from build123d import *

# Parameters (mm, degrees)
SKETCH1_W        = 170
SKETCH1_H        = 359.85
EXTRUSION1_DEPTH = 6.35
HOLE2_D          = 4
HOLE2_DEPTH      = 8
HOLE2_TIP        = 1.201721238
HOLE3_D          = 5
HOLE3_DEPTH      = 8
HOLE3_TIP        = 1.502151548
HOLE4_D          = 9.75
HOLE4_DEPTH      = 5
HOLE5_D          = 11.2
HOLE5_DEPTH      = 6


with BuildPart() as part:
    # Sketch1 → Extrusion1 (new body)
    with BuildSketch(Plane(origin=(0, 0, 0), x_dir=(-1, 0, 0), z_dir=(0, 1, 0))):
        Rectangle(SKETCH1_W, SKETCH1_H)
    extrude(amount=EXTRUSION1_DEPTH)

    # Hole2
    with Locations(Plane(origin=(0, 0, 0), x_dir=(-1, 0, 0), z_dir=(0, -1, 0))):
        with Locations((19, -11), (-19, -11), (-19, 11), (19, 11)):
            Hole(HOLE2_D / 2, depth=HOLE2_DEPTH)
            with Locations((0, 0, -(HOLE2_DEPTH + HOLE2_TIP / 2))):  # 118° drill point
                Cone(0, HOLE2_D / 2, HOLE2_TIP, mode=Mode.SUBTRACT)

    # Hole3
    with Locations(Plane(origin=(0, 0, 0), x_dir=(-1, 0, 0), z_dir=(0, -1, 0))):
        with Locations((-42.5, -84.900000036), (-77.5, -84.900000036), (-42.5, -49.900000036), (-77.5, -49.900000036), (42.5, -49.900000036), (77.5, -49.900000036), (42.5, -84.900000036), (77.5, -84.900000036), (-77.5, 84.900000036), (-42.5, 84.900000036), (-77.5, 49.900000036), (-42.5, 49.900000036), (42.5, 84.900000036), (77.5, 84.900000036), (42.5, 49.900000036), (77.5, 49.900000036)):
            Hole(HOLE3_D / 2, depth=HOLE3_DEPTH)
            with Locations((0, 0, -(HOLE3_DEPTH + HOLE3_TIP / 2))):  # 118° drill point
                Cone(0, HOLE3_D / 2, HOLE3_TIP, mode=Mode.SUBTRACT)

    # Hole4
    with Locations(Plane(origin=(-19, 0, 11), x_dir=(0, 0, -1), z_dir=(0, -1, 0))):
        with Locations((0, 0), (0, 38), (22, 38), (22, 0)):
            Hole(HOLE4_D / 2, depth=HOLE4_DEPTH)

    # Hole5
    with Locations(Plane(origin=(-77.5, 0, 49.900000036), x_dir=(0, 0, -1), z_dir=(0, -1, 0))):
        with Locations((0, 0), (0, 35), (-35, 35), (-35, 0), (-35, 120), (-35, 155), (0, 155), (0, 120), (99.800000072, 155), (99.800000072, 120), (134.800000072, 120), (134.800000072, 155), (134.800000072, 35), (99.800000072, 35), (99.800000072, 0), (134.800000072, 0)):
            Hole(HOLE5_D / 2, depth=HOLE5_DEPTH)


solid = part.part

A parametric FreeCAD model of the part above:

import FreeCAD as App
import Part
import Sketcher
from FreeCAD import Vector
Q = App.Units.Quantity

doc = App.newDocument("Part")
body = doc.addObject("PartDesign::Body", "Body")

# Sketch on XZ plane
sketch1 = body.newObject("Sketcher::SketchObject", "Sketch")
sketch1.AttachmentSupport = (doc.getObject("XZ_Plane"), [""])
sketch1.MapMode = "FlatFace"
sketch1.addGeometry(Part.LineSegment(Vector(85, 180, 0), Vector(85, -180, 0)), False)
sketch1.addGeometry(Part.LineSegment(Vector(85, -180, 0), Vector(-85, -180, 0)), False)
sketch1.addGeometry(Part.LineSegment(Vector(-85, -180, 0), Vector(-85, 180, 0)), False)
sketch1.addGeometry(Part.LineSegment(Vector(-85, 180, 0), Vector(85, 180, 0)), False)
sketch1.addConstraint(Sketcher.Constraint("Coincident", 0, 2, 1, 1))
sketch1.addConstraint(Sketcher.Constraint("Coincident", 1, 2, 2, 1))
sketch1.addConstraint(Sketcher.Constraint("Coincident", 2, 2, 3, 1))
sketch1.addConstraint(Sketcher.Constraint("Coincident", 3, 2, 0, 1))
sketch1.addConstraint(Sketcher.Constraint("Vertical", 0))
sketch1.addConstraint(Sketcher.Constraint("Horizontal", 1))
sketch1.addConstraint(Sketcher.Constraint("Vertical", 2))
sketch1.addConstraint(Sketcher.Constraint("Horizontal", 3))
sketch1.addConstraint(Sketcher.Constraint("Symmetric", 0, 2, 2, 2, -1, 1))
sketch1.addConstraint(Sketcher.Constraint("DistanceX", 1, 2, 1, 1, Q("170 mm")))
sketch1.addConstraint(Sketcher.Constraint("DistanceY", 0, 2, 0, 1, Q("359.85 mm")))
pad1 = body.newObject("PartDesign::Pad", "Pad")
pad1.Profile = sketch1
pad1.Length = 6.35
pad1.Reversed = True

# Sketch on XZ plane
sketch2 = body.newObject("Sketcher::SketchObject", "Sketch001")
sketch2.AttachmentSupport = (doc.getObject("XZ_Plane"), [""])
sketch2.MapMode = "FlatFace"
sketch2.addGeometry(Part.Circle(Vector(-19, 11, 0), Vector(0, 0, 1), 2), False)
sketch2.addGeometry(Part.Circle(Vector(19, 11, 0), Vector(0, 0, 1), 2), False)
sketch2.addGeometry(Part.Circle(Vector(19, -11, 0), Vector(0, 0, 1), 2), False)
sketch2.addGeometry(Part.Circle(Vector(-19, -11, 0), Vector(0, 0, 1), 2), False)
sketch2.addConstraint(Sketcher.Constraint("Equal", 0, 1))
sketch2.addConstraint(Sketcher.Constraint("Equal", 1, 2))
sketch2.addConstraint(Sketcher.Constraint("Equal", 2, 3))
sketch2.addConstraint(Sketcher.Constraint("Symmetric", 0, 3, 2, 3, -1, 1))
sketch2.addConstraint(Sketcher.Constraint("Symmetric", 1, 3, 3, 3, -1, 1))
sketch2.addConstraint(Sketcher.Constraint("Symmetric", 0, 3, 1, 3, -2))
sketch2.addConstraint(Sketcher.Constraint("Diameter", 0, Q("4 mm")))
sketch2.addConstraint(Sketcher.Constraint("DistanceX", 0, 3, -1, 1, Q("19 mm")))
sketch2.addConstraint(Sketcher.Constraint("DistanceY", -1, 1, 0, 3, Q("11 mm")))
doc.recompute()
hole = body.newObject("PartDesign::Hole", "Hole")
hole.Profile = sketch2
hole.ThreadType = "None"
hole.Diameter = 4
hole.DepthType = "Dimension"
hole.Depth = 8
hole.DrillPoint = "Angled"
hole.DrillPointAngle = 118

# Sketch on XZ plane
sketch3 = body.newObject("Sketcher::SketchObject", "Sketch002")
sketch3.AttachmentSupport = (doc.getObject("XZ_Plane"), [""])
sketch3.MapMode = "FlatFace"
sketch3.addGeometry(Part.Circle(Vector(42.5, 84.9, 0), Vector(0, 0, 1), 2.5), False)
sketch3.addGeometry(Part.Circle(Vector(77.5, 84.9, 0), Vector(0, 0, 1), 2.5), False)
sketch3.addGeometry(Part.Circle(Vector(42.5, 49.9, 0), Vector(0, 0, 1), 2.5), False)
sketch3.addGeometry(Part.Circle(Vector(77.5, 49.9, 0), Vector(0, 0, 1), 2.5), False)
sketch3.addGeometry(Part.Circle(Vector(-42.5, 49.9, 0), Vector(0, 0, 1), 2.5), False)
sketch3.addGeometry(Part.Circle(Vector(-77.5, 49.9, 0), Vector(0, 0, 1), 2.5), False)
sketch3.addGeometry(Part.Circle(Vector(-42.5, 84.9, 0), Vector(0, 0, 1), 2.5), False)
sketch3.addGeometry(Part.Circle(Vector(-77.5, 84.9, 0), Vector(0, 0, 1), 2.5), False)
sketch3.addGeometry(Part.Circle(Vector(77.5, -84.9, 0), Vector(0, 0, 1), 2.5), False)
sketch3.addGeometry(Part.Circle(Vector(42.5, -84.9, 0), Vector(0, 0, 1), 2.5), False)
sketch3.addGeometry(Part.Circle(Vector(77.5, -49.9, 0), Vector(0, 0, 1), 2.5), False)
sketch3.addGeometry(Part.Circle(Vector(42.5, -49.9, 0), Vector(0, 0, 1), 2.5), False)
sketch3.addGeometry(Part.Circle(Vector(-42.5, -84.9, 0), Vector(0, 0, 1), 2.5), False)
sketch3.addGeometry(Part.Circle(Vector(-77.5, -84.9, 0), Vector(0, 0, 1), 2.5), False)
sketch3.addGeometry(Part.Circle(Vector(-42.5, -49.9, 0), Vector(0, 0, 1), 2.5), False)
sketch3.addGeometry(Part.Circle(Vector(-77.5, -49.9, 0), Vector(0, 0, 1), 2.5), False)
sketch3.addConstraint(Sketcher.Constraint("Equal", 0, 1))
sketch3.addConstraint(Sketcher.Constraint("Equal", 1, 2))
sketch3.addConstraint(Sketcher.Constraint("Equal", 2, 3))
sketch3.addConstraint(Sketcher.Constraint("Equal", 3, 4))
sketch3.addConstraint(Sketcher.Constraint("Equal", 4, 5))
sketch3.addConstraint(Sketcher.Constraint("Equal", 5, 6))
sketch3.addConstraint(Sketcher.Constraint("Equal", 6, 7))
sketch3.addConstraint(Sketcher.Constraint("Equal", 7, 8))
sketch3.addConstraint(Sketcher.Constraint("Equal", 8, 9))
sketch3.addConstraint(Sketcher.Constraint("Equal", 9, 10))
sketch3.addConstraint(Sketcher.Constraint("Equal", 10, 11))
sketch3.addConstraint(Sketcher.Constraint("Equal", 11, 12))
sketch3.addConstraint(Sketcher.Constraint("Equal", 12, 13))
sketch3.addConstraint(Sketcher.Constraint("Equal", 13, 14))
sketch3.addConstraint(Sketcher.Constraint("Equal", 14, 15))
sketch3.addConstraint(Sketcher.Constraint("Symmetric", 7, 3, 8, 3, -1, 1))
sketch3.addConstraint(Sketcher.Constraint("Symmetric", 6, 3, 9, 3, -1, 1))
sketch3.addConstraint(Sketcher.Constraint("Symmetric", 5, 3, 10, 3, -1, 1))
sketch3.addConstraint(Sketcher.Constraint("Symmetric", 4, 3, 11, 3, -1, 1))
sketch3.addConstraint(Sketcher.Constraint("Symmetric", 0, 3, 12, 3, -1, 1))
sketch3.addConstraint(Sketcher.Constraint("Symmetric", 1, 3, 13, 3, -1, 1))
sketch3.addConstraint(Sketcher.Constraint("Symmetric", 2, 3, 14, 3, -1, 1))
sketch3.addConstraint(Sketcher.Constraint("Symmetric", 3, 3, 15, 3, -1, 1))
sketch3.addConstraint(Sketcher.Constraint("Symmetric", 2, 3, 4, 3, -2))
sketch3.addConstraint(Sketcher.Constraint("Symmetric", 3, 3, 5, 3, -2))
sketch3.addConstraint(Sketcher.Constraint("Symmetric", 0, 3, 6, 3, -2))
sketch3.addConstraint(Sketcher.Constraint("Symmetric", 1, 3, 7, 3, -2))
sketch3.addConstraint(Sketcher.Constraint("Horizontal", 0, 3, 1, 3))
sketch3.addConstraint(Sketcher.Constraint("Horizontal", 2, 3, 3, 3))
sketch3.addConstraint(Sketcher.Constraint("Vertical", 0, 3, 2, 3))
sketch3.addConstraint(Sketcher.Constraint("Vertical", 1, 3, 3, 3))
sketch3.addConstraint(Sketcher.Constraint("Diameter", 0, Q("5 mm")))
sketch3.addConstraint(Sketcher.Constraint("DistanceX", 0, 3, 1, 3, Q("35 mm")))
sketch3.addConstraint(Sketcher.Constraint("DistanceY", 2, 3, 0, 3, Q("35 mm")))
sketch3.addConstraint(Sketcher.Constraint("DistanceX", 4, 3, 2, 3, Q("85 mm")))
sketch3.addConstraint(Sketcher.Constraint("DistanceY", -1, 1, 0, 3, Q("84.9 mm")))
doc.recompute()
hole2 = body.newObject("PartDesign::Hole", "Hole001")
hole2.Profile = sketch3
hole2.ThreadType = "None"
hole2.Diameter = 5
hole2.DepthType = "Dimension"
hole2.Depth = 8
hole2.DrillPoint = "Angled"
hole2.DrillPointAngle = 118

# Sketch on XZ plane
sketch4 = body.newObject("Sketcher::SketchObject", "Sketch003")
sketch4.AttachmentSupport = (doc.getObject("XZ_Plane"), [""])
sketch4.MapMode = "FlatFace"
sketch4.addGeometry(Part.Circle(Vector(-19, 11, 0), Vector(0, 0, 1), 4.9), False)
sketch4.addGeometry(Part.Circle(Vector(19, 11, 0), Vector(0, 0, 1), 4.9), False)
sketch4.addGeometry(Part.Circle(Vector(19, -11, 0), Vector(0, 0, 1), 4.9), False)
sketch4.addGeometry(Part.Circle(Vector(-19, -11, 0), Vector(0, 0, 1), 4.9), False)
sketch4.addConstraint(Sketcher.Constraint("Equal", 0, 1))
sketch4.addConstraint(Sketcher.Constraint("Equal", 1, 2))
sketch4.addConstraint(Sketcher.Constraint("Equal", 2, 3))
sketch4.addConstraint(Sketcher.Constraint("Symmetric", 0, 3, 2, 3, -1, 1))
sketch4.addConstraint(Sketcher.Constraint("Symmetric", 1, 3, 3, 3, -1, 1))
sketch4.addConstraint(Sketcher.Constraint("Symmetric", 0, 3, 1, 3, -2))
sketch4.addConstraint(Sketcher.Constraint("Diameter", 0, Q("9.75 mm")))
sketch4.addConstraint(Sketcher.Constraint("DistanceX", 0, 3, -1, 1, Q("19 mm")))
sketch4.addConstraint(Sketcher.Constraint("DistanceY", -1, 1, 0, 3, Q("11 mm")))
doc.recompute()
hole3 = body.newObject("PartDesign::Hole", "Hole002")
hole3.Profile = sketch4
hole3.ThreadType = "None"
hole3.Diameter = 9.75
hole3.DepthType = "Dimension"
hole3.Depth = 5
hole3.DrillPoint = "Flat"

# Sketch on XZ plane
sketch5 = body.newObject("Sketcher::SketchObject", "Sketch004")
sketch5.AttachmentSupport = (doc.getObject("XZ_Plane"), [""])
sketch5.MapMode = "FlatFace"
sketch5.addGeometry(Part.Circle(Vector(-78, 50, 0), Vector(0, 0, 1), 6), False)
sketch5.addGeometry(Part.Circle(Vector(-42, 50, 0), Vector(0, 0, 1), 6), False)
sketch5.addGeometry(Part.Circle(Vector(-42, 85, 0), Vector(0, 0, 1), 6), False)
sketch5.addGeometry(Part.Circle(Vector(-78, 85, 0), Vector(0, 0, 1), 6), False)
sketch5.addGeometry(Part.Circle(Vector(42, 85, 0), Vector(0, 0, 1), 6), False)
sketch5.addGeometry(Part.Circle(Vector(78, 85, 0), Vector(0, 0, 1), 6), False)
sketch5.addGeometry(Part.Circle(Vector(78, 50, 0), Vector(0, 0, 1), 6), False)
sketch5.addGeometry(Part.Circle(Vector(42, 50, 0), Vector(0, 0, 1), 6), False)
sketch5.addGeometry(Part.Circle(Vector(78, -50, 0), Vector(0, 0, 1), 6), False)
sketch5.addGeometry(Part.Circle(Vector(42, -50, 0), Vector(0, 0, 1), 6), False)
sketch5.addGeometry(Part.Circle(Vector(42, -85, 0), Vector(0, 0, 1), 6), False)
sketch5.addGeometry(Part.Circle(Vector(78, -85, 0), Vector(0, 0, 1), 6), False)
sketch5.addGeometry(Part.Circle(Vector(-42, -85, 0), Vector(0, 0, 1), 6), False)
sketch5.addGeometry(Part.Circle(Vector(-42, -50, 0), Vector(0, 0, 1), 6), False)
sketch5.addGeometry(Part.Circle(Vector(-78, -50, 0), Vector(0, 0, 1), 6), False)
sketch5.addGeometry(Part.Circle(Vector(-78, -85, 0), Vector(0, 0, 1), 6), False)
sketch5.addConstraint(Sketcher.Constraint("Equal", 0, 1))
sketch5.addConstraint(Sketcher.Constraint("Equal", 1, 2))
sketch5.addConstraint(Sketcher.Constraint("Equal", 2, 3))
sketch5.addConstraint(Sketcher.Constraint("Equal", 3, 4))
sketch5.addConstraint(Sketcher.Constraint("Equal", 4, 5))
sketch5.addConstraint(Sketcher.Constraint("Equal", 5, 6))
sketch5.addConstraint(Sketcher.Constraint("Equal", 6, 7))
sketch5.addConstraint(Sketcher.Constraint("Equal", 7, 8))
sketch5.addConstraint(Sketcher.Constraint("Equal", 8, 9))
sketch5.addConstraint(Sketcher.Constraint("Equal", 9, 10))
sketch5.addConstraint(Sketcher.Constraint("Equal", 10, 11))
sketch5.addConstraint(Sketcher.Constraint("Equal", 11, 12))
sketch5.addConstraint(Sketcher.Constraint("Equal", 12, 13))
sketch5.addConstraint(Sketcher.Constraint("Equal", 13, 14))
sketch5.addConstraint(Sketcher.Constraint("Equal", 14, 15))
sketch5.addConstraint(Sketcher.Constraint("Symmetric", 0, 3, 8, 3, -1, 1))
sketch5.addConstraint(Sketcher.Constraint("Symmetric", 1, 3, 9, 3, -1, 1))
sketch5.addConstraint(Sketcher.Constraint("Symmetric", 2, 3, 10, 3, -1, 1))
sketch5.addConstraint(Sketcher.Constraint("Symmetric", 3, 3, 11, 3, -1, 1))
sketch5.addConstraint(Sketcher.Constraint("Symmetric", 4, 3, 12, 3, -1, 1))
sketch5.addConstraint(Sketcher.Constraint("Symmetric", 7, 3, 13, 3, -1, 1))
sketch5.addConstraint(Sketcher.Constraint("Symmetric", 6, 3, 14, 3, -1, 1))
sketch5.addConstraint(Sketcher.Constraint("Symmetric", 5, 3, 15, 3, -1, 1))
sketch5.addConstraint(Sketcher.Constraint("Symmetric", 2, 3, 4, 3, -2))
sketch5.addConstraint(Sketcher.Constraint("Symmetric", 3, 3, 5, 3, -2))
sketch5.addConstraint(Sketcher.Constraint("Symmetric", 0, 3, 6, 3, -2))
sketch5.addConstraint(Sketcher.Constraint("Symmetric", 1, 3, 7, 3, -2))
sketch5.addConstraint(Sketcher.Constraint("Horizontal", 0, 3, 1, 3))
sketch5.addConstraint(Sketcher.Constraint("Horizontal", 2, 3, 3, 3))
sketch5.addConstraint(Sketcher.Constraint("Vertical", 1, 3, 2, 3))
sketch5.addConstraint(Sketcher.Constraint("Vertical", 0, 3, 3, 3))
sketch5.addConstraint(Sketcher.Constraint("Diameter", 0, Q("11.2 mm")))
sketch5.addConstraint(Sketcher.Constraint("DistanceX", 0, 3, 1, 3, Q("35 mm")))
sketch5.addConstraint(Sketcher.Constraint("DistanceY", 1, 3, 2, 3, Q("35 mm")))
sketch5.addConstraint(Sketcher.Constraint("DistanceX", 2, 3, 4, 3, Q("85 mm")))
sketch5.addConstraint(Sketcher.Constraint("DistanceY", -1, 1, 0, 3, Q("49.9 mm")))
doc.recompute()
hole4 = body.newObject("PartDesign::Hole", "Hole003")
hole4.Profile = sketch5
hole4.ThreadType = "None"
hole4.Diameter = 11.2
hole4.DepthType = "Dimension"
hole4.Depth = 6
hole4.DrillPoint = "Flat"

doc.recompute()
